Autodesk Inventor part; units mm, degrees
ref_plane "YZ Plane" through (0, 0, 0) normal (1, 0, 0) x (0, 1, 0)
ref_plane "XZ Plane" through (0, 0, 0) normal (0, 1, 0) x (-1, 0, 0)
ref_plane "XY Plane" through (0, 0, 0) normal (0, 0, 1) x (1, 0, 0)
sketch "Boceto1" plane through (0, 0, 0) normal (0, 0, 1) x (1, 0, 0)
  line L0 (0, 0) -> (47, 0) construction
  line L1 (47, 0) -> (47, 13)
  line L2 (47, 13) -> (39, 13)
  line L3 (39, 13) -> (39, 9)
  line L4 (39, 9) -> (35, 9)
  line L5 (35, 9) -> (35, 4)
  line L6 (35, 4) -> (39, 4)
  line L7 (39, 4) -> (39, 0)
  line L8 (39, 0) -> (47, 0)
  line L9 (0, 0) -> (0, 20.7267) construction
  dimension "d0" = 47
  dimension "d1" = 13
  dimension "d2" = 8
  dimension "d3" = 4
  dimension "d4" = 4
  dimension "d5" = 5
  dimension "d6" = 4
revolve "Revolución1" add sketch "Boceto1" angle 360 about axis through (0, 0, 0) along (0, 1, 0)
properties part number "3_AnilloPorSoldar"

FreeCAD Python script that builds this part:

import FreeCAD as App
import Part
import Sketcher

V = App.Vector
Q = App.Units.Quantity


def add_polygon(sketch, points):
    """Adds a closed chain of lines whose ends are joined by coincident constraints."""
    first, n = sketch.GeometryCount, len(points)
    for a, b in zip(points, points[1:] + points[:1]):
        sketch.addGeometry(Part.LineSegment(App.Vector(*a, 0), App.Vector(*b, 0)), False)
    for i in range(n):
        sketch.addConstraint(Sketcher.Constraint("Coincident", first + i, 2, first + (i + 1) % n, 1))

doc = App.newDocument("Part")
params = doc.addObject("Spreadsheet::Sheet", "Params")
for row, (alias, value) in enumerate([
    ("sketch1_width", "8 mm"),
    ("sketch1_width2", "4 mm"),
    ("sketch1_height", "13 mm"),
    ("revolution_angle", "360 deg"),
], start=1):
    params.set(f"A{row}", alias)
    params.set(f"B{row}", "=" + value)
    params.setAlias(f"B{row}", alias)

body = doc.addObject("PartDesign::Body", "Body")

# Sketch on XY plane
sketch1 = body.newObject("Sketcher::SketchObject", "Sketch")
sketch1.AttachmentSupport = (doc.getObject("XY_Plane"), [""])
sketch1.MapMode = "FlatFace"
add_polygon(sketch1, [(39, 0), (47, 0), (47, 13), (39, 13), (39, 9), (35, 9), (35, 4), (39, 4)])  # lines 0-7
sketch1.addConstraint([
    Sketcher.Constraint("Horizontal", 0),
    Sketcher.Constraint("Vertical", 1),
    Sketcher.Constraint("Horizontal", 2),
    Sketcher.Constraint("Vertical", 3),
    Sketcher.Constraint("Horizontal", 4),
    Sketcher.Constraint("Vertical", 5),
    Sketcher.Constraint("Horizontal", 6),
    Sketcher.Constraint("Vertical", 7),
    Sketcher.Constraint("PointOnObject", 0, 2, -1),
    Sketcher.Constraint("Vertical", 3, 2, 6, 2),
    Sketcher.Constraint("Equal", 6, 3),
    Sketcher.Constraint("Equal", 3, 7),
    Sketcher.Constraint("DistanceX", 0, 1, 0, 2, Q("8 mm")),
    Sketcher.Constraint("DistanceX", 4, 2, 4, 1, Q("4 mm")),
    Sketcher.Constraint("DistanceY", 1, 1, 1, 2, Q("13 mm")),
    Sketcher.Constraint("DistanceX", -1, 1, 0, 2, Q("47 mm")),
])
sketch1.setExpression("Constraints[20]", "Params.sketch1_width")
sketch1.setExpression("Constraints[21]", "Params.sketch1_width2")
sketch1.setExpression("Constraints[22]", "Params.sketch1_height")
revolution = body.newObject("PartDesign::Revolution", "Revolution")
revolution.Profile = sketch1
revolution.ReferenceAxis = (sketch1, ["V_Axis"])
revolution.setExpression("Angle", "Params.revolution_angle")

doc.recompute()
